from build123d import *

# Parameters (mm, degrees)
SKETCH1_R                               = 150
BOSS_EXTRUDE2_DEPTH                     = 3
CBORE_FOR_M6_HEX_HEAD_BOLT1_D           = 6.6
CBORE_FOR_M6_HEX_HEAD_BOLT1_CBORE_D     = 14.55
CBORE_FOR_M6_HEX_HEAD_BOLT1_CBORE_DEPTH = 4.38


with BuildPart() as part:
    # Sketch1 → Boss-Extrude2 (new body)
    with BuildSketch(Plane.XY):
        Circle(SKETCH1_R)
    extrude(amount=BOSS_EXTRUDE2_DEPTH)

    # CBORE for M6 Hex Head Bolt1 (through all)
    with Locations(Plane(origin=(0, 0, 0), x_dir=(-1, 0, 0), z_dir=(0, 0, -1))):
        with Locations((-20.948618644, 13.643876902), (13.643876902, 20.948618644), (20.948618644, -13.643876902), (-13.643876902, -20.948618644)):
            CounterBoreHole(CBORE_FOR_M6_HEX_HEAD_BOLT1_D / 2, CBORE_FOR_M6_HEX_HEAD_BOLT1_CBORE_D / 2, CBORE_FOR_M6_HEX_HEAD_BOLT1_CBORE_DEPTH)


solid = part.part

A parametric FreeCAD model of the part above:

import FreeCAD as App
import Part
import Sketcher

V = App.Vector
Q = App.Units.Quantity

doc = App.newDocument("Part")
params = doc.addObject("Spreadsheet::Sheet", "Params")
for row, (alias, value) in enumerate([
    ("sketch1_diameter", "300 mm"),
    ("pad1_length", "3 mm"),
    ("sketch2_diameter", "6.6 mm"),
    ("hole_diameter", "6.6 mm"),
    ("hole_cbore_diameter", "14.55 mm"),
    ("hole_cbore_depth", "4.38 mm"),
], start=1):
    params.set(f"A{row}", alias)
    params.set(f"B{row}", "=" + value)
    params.setAlias(f"B{row}", alias)

body = doc.addObject("PartDesign::Body", "Body")

# Sketch on XY plane
sketch1 = body.newObject("Sketcher::SketchObject", "Sketch")
sketch1.AttachmentSupport = (doc.getObject("XY_Plane"), [""])
sketch1.MapMode = "FlatFace"
sketch1.addGeometry(Part.Circle(V(0, 0, 0), V(0, 0, 1), 150), False)
sketch1.addConstraint([
    Sketcher.Constraint("Coincident", 0, 3, -1, 1),
    Sketcher.Constraint("Diameter", 0, Q("300 mm")),
])
sketch1.setExpression("Constraints[1]", "Params.sketch1_diameter")
pad1 = body.newObject("PartDesign::Pad", "Pad")
pad1.Profile = sketch1
pad1.setExpression("Length", "Params.pad1_length")

# Sketch on XY plane
sketch2 = body.newObject("Sketcher::SketchObject", "Sketch001")
sketch2.AttachmentSupport = (doc.getObject("XY_Plane"), [""])
sketch2.MapMode = "FlatFace"
sketch2.addGeometry([
    Part.Circle(V(20.9, 13.6, 0), V(0, 0, 1), 3.3),
    Part.Circle(V(-13.6, 20.9, 0), V(0, 0, 1), 3.3),
    Part.Circle(V(-20.9, -13.6, 0), V(0, 0, 1), 3.3),
    Part.Circle(V(13.6, -20.9, 0), V(0, 0, 1), 3.3),
], False)
sketch2.addConstraint([
    Sketcher.Constraint("Equal", 0, 1),
    Sketcher.Constraint("Equal", 1, 2),
    Sketcher.Constraint("Equal", 2, 3),
    Sketcher.Constraint("Symmetric", 0, 3, 2, 3, -1, 1),
    Sketcher.Constraint("Symmetric", 1, 3, 3, 3, -1, 1),
    Sketcher.Constraint("Diameter", 0, Q("6.6 mm")),
    Sketcher.Constraint("DistanceX", -1, 1, 0, 3, Q("20.948619 mm")),
    Sketcher.Constraint("DistanceY", -1, 1, 1, 3, Q("20.948619 mm")),
    Sketcher.Constraint("DistanceY", 0, 3, 1, 3, Q("7.304742 mm")),
    Sketcher.Constraint("DistanceX", 2, 3, 1, 3, Q("7.304742 mm")),
])
sketch2.setExpression("Constraints[5]", "Params.sketch2_diameter")
doc.recompute()
hole = body.newObject("PartDesign::Hole", "Hole")
hole.Profile = sketch2
hole.ThreadType = "None"
hole.setExpression("Diameter", "Params.hole_diameter")
hole.DepthType = "ThroughAll"
hole.HoleCutType = "Counterbore"
hole.setExpression("HoleCutDiameter", "Params.hole_cbore_diameter")
hole.setExpression("HoleCutDepth", "Params.hole_cbore_depth")
hole.Reversed = True

doc.recompute()
